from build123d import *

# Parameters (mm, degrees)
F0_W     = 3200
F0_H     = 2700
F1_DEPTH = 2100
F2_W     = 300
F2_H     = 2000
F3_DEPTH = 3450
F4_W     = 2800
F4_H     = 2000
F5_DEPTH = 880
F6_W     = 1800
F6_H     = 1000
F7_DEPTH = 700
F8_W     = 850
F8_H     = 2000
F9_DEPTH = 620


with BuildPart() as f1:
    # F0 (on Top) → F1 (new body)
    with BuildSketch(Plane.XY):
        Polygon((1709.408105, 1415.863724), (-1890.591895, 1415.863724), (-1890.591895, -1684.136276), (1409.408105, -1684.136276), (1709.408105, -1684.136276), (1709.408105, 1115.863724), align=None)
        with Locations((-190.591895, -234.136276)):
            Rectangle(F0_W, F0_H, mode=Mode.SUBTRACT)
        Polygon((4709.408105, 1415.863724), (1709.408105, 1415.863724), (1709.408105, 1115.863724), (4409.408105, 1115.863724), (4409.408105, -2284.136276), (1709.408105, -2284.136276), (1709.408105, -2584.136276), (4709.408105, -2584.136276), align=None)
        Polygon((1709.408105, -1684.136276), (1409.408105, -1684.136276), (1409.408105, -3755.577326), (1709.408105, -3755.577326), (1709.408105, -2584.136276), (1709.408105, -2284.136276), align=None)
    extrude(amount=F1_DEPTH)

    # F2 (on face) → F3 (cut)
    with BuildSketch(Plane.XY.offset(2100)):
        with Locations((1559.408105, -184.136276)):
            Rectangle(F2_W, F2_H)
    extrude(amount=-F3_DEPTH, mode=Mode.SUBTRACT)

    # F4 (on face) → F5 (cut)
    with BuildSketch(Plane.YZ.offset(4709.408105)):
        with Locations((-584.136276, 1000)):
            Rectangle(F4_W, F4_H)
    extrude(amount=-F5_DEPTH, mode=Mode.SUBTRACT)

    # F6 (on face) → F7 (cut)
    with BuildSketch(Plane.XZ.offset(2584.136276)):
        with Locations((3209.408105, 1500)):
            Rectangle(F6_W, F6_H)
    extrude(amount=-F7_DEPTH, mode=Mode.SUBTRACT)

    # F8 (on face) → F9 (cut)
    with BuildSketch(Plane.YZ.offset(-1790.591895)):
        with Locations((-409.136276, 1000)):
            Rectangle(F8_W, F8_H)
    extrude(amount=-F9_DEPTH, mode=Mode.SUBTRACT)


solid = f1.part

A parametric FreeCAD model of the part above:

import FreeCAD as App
import Part
import Sketcher
from FreeCAD import Vector
Q = App.Units.Quantity

doc = App.newDocument("Part")
body = doc.addObject("PartDesign::Body", "Body")

# Sketch on XY plane
sketch1 = body.newObject("Sketcher::SketchObject", "Sketch")
sketch1.AttachmentSupport = (doc.getObject("XY_Plane"), [""])
sketch1.MapMode = "FlatFace"
sketch1.addGeometry([
    Part.LineSegment(Vector(-1891, 1416, 0), Vector(-1891, -1684, 0)),  # 0
    Part.LineSegment(Vector(-1891, -1684, 0), Vector(1409, -1684, 0)),  # 1
    Part.LineSegment(Vector(1409, -1684, 0), Vector(1409, -3756, 0)),  # 2
    Part.LineSegment(Vector(1409, -3756, 0), Vector(1709, -3756, 0)),  # 3
    Part.LineSegment(Vector(1709, -3756, 0), Vector(1709, -2584, 0)),  # 4
    Part.LineSegment(Vector(1709, -2584, 0), Vector(4709, -2584, 0)),  # 5
    Part.LineSegment(Vector(4709, -2584, 0), Vector(4709, 1416, 0)),  # 6
    Part.LineSegment(Vector(4709, 1416, 0), Vector(-1891, 1416, 0)),  # 7
    Part.LineSegment(Vector(1709, 1116, 0), Vector(4409, 1116, 0)),  # 8
    Part.LineSegment(Vector(4409, 1116, 0), Vector(4409, -2284, 0)),  # 9
    Part.LineSegment(Vector(4409, -2284, 0), Vector(1709, -2284, 0)),  # 10
    Part.LineSegment(Vector(1709, -2284, 0), Vector(1709, 1116, 0)),  # 11
    Part.LineSegment(Vector(1409, -1584, 0), Vector(-1791, -1584, 0)),  # 12
    Part.LineSegment(Vector(-1791, -1584, 0), Vector(-1791, 1116, 0)),  # 13
    Part.LineSegment(Vector(-1791, 1116, 0), Vector(1409, 1116, 0)),  # 14
    Part.LineSegment(Vector(1409, 1116, 0), Vector(1409, -1584, 0)),  # 15
], False)
sketch1.addConstraint([
    Sketcher.Constraint("Coincident", 0, 2, 1, 1),
    Sketcher.Constraint("Coincident", 1, 2, 2, 1),
    Sketcher.Constraint("Coincident", 2, 2, 3, 1),
    Sketcher.Constraint("Coincident", 3, 2, 4, 1),
    Sketcher.Constraint("Coincident", 4, 2, 5, 1),
    Sketcher.Constraint("Coincident", 5, 2, 6, 1),
    Sketcher.Constraint("Coincident", 6, 2, 7, 1),
    Sketcher.Constraint("Coincident", 7, 2, 0, 1),
    Sketcher.Constraint("Coincident", 8, 2, 9, 1),
    Sketcher.Constraint("Coincident", 9, 2, 10, 1),
    Sketcher.Constraint("Coincident", 10, 2, 11, 1),
    Sketcher.Constraint("Coincident", 11, 2, 8, 1),
    Sketcher.Constraint("Coincident", 12, 2, 13, 1),
    Sketcher.Constraint("Coincident", 13, 2, 14, 1),
    Sketcher.Constraint("Coincident", 14, 2, 15, 1),
    Sketcher.Constraint("Coincident", 15, 2, 12, 1),
    Sketcher.Constraint("Vertical", 0),
    Sketcher.Constraint("Horizontal", 1),
    Sketcher.Constraint("Vertical", 2),
    Sketcher.Constraint("Horizontal", 3),
    Sketcher.Constraint("Vertical", 4),
    Sketcher.Constraint("Horizontal", 5),
    Sketcher.Constraint("Vertical", 6),
    Sketcher.Constraint("Horizontal", 7),
    Sketcher.Constraint("Horizontal", 8),
    Sketcher.Constraint("Vertical", 9),
    Sketcher.Constraint("Horizontal", 10),
    Sketcher.Constraint("Vertical", 11),
    Sketcher.Constraint("Horizontal", 12),
    Sketcher.Constraint("Vertical", 13),
    Sketcher.Constraint("Horizontal", 14),
    Sketcher.Constraint("Vertical", 15),
    Sketcher.Constraint("Horizontal", 11, 2, 13, 2),
    Sketcher.Constraint("Vertical", 4, 2, 10, 2),
    Sketcher.Constraint("Vertical", 2, 2, 14, 2),
    Sketcher.Constraint("Equal", 10, 13),
    Sketcher.Constraint("DistanceX", 1, 1, 1, 2, Q("3300 mm")),
    Sketcher.Constraint("DistanceX", 3, 1, 3, 2, Q("300 mm")),
    Sketcher.Constraint("DistanceX", 5, 1, 5, 2, Q("3000 mm")),
    Sketcher.Constraint("DistanceX", 8, 1, 8, 2, Q("2700 mm")),
    Sketcher.Constraint("DistanceX", 12, 2, 12, 1, Q("3200 mm")),
    Sketcher.Constraint("DistanceY", 0, 2, 0, 1, Q("3100 mm")),
    Sketcher.Constraint("DistanceY", 6, 1, 6, 2, Q("4000 mm")),
    Sketcher.Constraint("DistanceY", 9, 2, 9, 1, Q("3400 mm")),
    Sketcher.Constraint("DistanceY", 8, 2, 6, 2, Q("300 mm")),
    Sketcher.Constraint("DistanceY", 2, 2, 2, 1, Q("2071.44105 mm")),
    Sketcher.Constraint("DistanceX", 0, 2, -1, 1, Q("1890.591895 mm")),
    Sketcher.Constraint("DistanceY", 0, 2, -1, 1, Q("1684.136276 mm")),
])
pad1 = body.newObject("PartDesign::Pad", "Pad")
pad1.Profile = sketch1
pad1.Length = 2100

# Sketch on XY plane
sketch2 = body.newObject("Sketcher::SketchObject", "Sketch001")
sketch2.AttachmentSupport = (doc.getObject("XY_Plane"), [""])
sketch2.MapMode = "FlatFace"
sketch2.AttachmentOffset = App.Placement(Vector(0, 0, 2100), App.Rotation())
sketch2.addGeometry([
    Part.LineSegment(Vector(1409, 816, 0), Vector(1409, -1184, 0)),
    Part.LineSegment(Vector(1409, -1184, 0), Vector(1709, -1184, 0)),
    Part.LineSegment(Vector(1709, -1184, 0), Vector(1709, 816, 0)),
    Part.LineSegment(Vector(1709, 816, 0), Vector(1409, 816, 0)),
], False)
sketch2.addConstraint([
    Sketcher.Constraint("Coincident", 0, 2, 1, 1),
    Sketcher.Constraint("Coincident", 1, 2, 2, 1),
    Sketcher.Constraint("Coincident", 2, 2, 3, 1),
    Sketcher.Constraint("Coincident", 3, 2, 0, 1),
    Sketcher.Constraint("Vertical", 0),
    Sketcher.Constraint("Horizontal", 1),
    Sketcher.Constraint("Vertical", 2),
    Sketcher.Constraint("Horizontal", 3),
    Sketcher.Constraint("DistanceX", 1, 1, 1, 2, Q("300 mm")),
    Sketcher.Constraint("DistanceY", 0, 2, 0, 1, Q("2000 mm")),
    Sketcher.Constraint("DistanceX", -1, 1, 0, 2, Q("1409.408105 mm")),
    Sketcher.Constraint("DistanceY", 0, 2, -1, 1, Q("1184.136276 mm")),
])
pocket1 = body.newObject("PartDesign::Pocket", "Pocket")
pocket1.Profile = sketch2
pocket1.Length = 3450

# Sketch on YZ plane
sketch3 = body.newObject("Sketcher::SketchObject", "Sketch002")
sketch3.AttachmentSupport = (doc.getObject("YZ_Plane"), [""])
sketch3.MapMode = "FlatFace"
sketch3.AttachmentOffset = App.Placement(Vector(0, 0, 4709.408105), App.Rotation())
sketch3.addGeometry([
    Part.LineSegment(Vector(-1984, 2000, 0), Vector(-1984, 0, 0)),
    Part.LineSegment(Vector(-1984, 0, 0), Vector(816, 0, 0)),
    Part.LineSegment(Vector(816, 0, 0), Vector(816, 2000, 0)),
    Part.LineSegment(Vector(816, 2000, 0), Vector(-1984, 2000, 0)),
], False)
sketch3.addConstraint([
    Sketcher.Constraint("Coincident", 0, 2, 1, 1),
    Sketcher.Constraint("Coincident", 1, 2, 2, 1),
    Sketcher.Constraint("Coincident", 2, 2, 3, 1),
    Sketcher.Constraint("Coincident", 3, 2, 0, 1),
    Sketcher.Constraint("Vertical", 0),
    Sketcher.Constraint("Horizontal", 1),
    Sketcher.Constraint("Vertical", 2),
    Sketcher.Constraint("Horizontal", 3),
    Sketcher.Constraint("PointOnObject", 0, 2, -1),
    Sketcher.Constraint("DistanceX", 1, 1, 1, 2, Q("2800 mm")),
    Sketcher.Constraint("DistanceY", 0, 2, 0, 1, Q("2000 mm")),
    Sketcher.Constraint("DistanceX", 0, 2, -1, 1, Q("1984.136276 mm")),
])
pocket2 = body.newObject("PartDesign::Pocket", "Pocket001")
pocket2.Profile = sketch3
pocket2.Length = 880

# Sketch on XZ plane
sketch4 = body.newObject("Sketcher::SketchObject", "Sketch003")
sketch4.AttachmentSupport = (doc.getObject("XZ_Plane"), [""])
sketch4.MapMode = "FlatFace"
sketch4.AttachmentOffset = App.Placement(Vector(0, 0, 2584.136276), App.Rotation())
sketch4.addGeometry([
    Part.LineSegment(Vector(2309, 2000, 0), Vector(2309, 1000, 0)),
    Part.LineSegment(Vector(2309, 1000, 0), Vector(4109, 1000, 0)),
    Part.LineSegment(Vector(4109, 1000, 0), Vector(4109, 2000, 0)),
    Part.LineSegment(Vector(4109, 2000, 0), Vector(2309, 2000, 0)),
], False)
sketch4.addConstraint([
    Sketcher.Constraint("Coincident", 0, 2, 1, 1),
    Sketcher.Constraint("Coincident", 1, 2, 2, 1),
    Sketcher.Constraint("Coincident", 2, 2, 3, 1),
    Sketcher.Constraint("Coincident", 3, 2, 0, 1),
    Sketcher.Constraint("Vertical", 0),
    Sketcher.Constraint("Horizontal", 1),
    Sketcher.Constraint("Vertical", 2),
    Sketcher.Constraint("Horizontal", 3),
    Sketcher.Constraint("DistanceX", 1, 1, 1, 2, Q("1800 mm")),
    Sketcher.Constraint("DistanceY", 0, 2, 0, 1, Q("1000 mm")),
    Sketcher.Constraint("DistanceY", -1, 1, 0, 2, Q("1000 mm")),
    Sketcher.Constraint("DistanceX", -1, 1, 0, 2, Q("2309.408105 mm")),
])
pocket3 = body.newObject("PartDesign::Pocket", "Pocket002")
pocket3.Profile = sketch4
pocket3.Length = 700

# Sketch on YZ plane
sketch5 = body.newObject("Sketcher::SketchObject", "Sketch004")
sketch5.AttachmentSupport = (doc.getObject("YZ_Plane"), [""])
sketch5.MapMode = "FlatFace"
sketch5.AttachmentOffset = App.Placement(Vector(0, 0, -1790.591895), App.Rotation())
sketch5.addGeometry([
    Part.LineSegment(Vector(-834, 2000, 0), Vector(-834, 0, 0)),
    Part.LineSegment(Vector(-834, 0, 0), Vector(16, 0, 0)),
    Part.LineSegment(Vector(16, 0, 0), Vector(16, 2000, 0)),
    Part.LineSegment(Vector(16, 2000, 0), Vector(-834, 2000, 0)),
], False)
sketch5.addConstraint([
    Sketcher.Constraint("Coincident", 0, 2, 1, 1),
    Sketcher.Constraint("Coincident", 1, 2, 2, 1),
    Sketcher.Constraint("Coincident", 2, 2, 3, 1),
    Sketcher.Constraint("Coincident", 3, 2, 0, 1),
    Sketcher.Constraint("Vertical", 0),
    Sketcher.Constraint("Horizontal", 1),
    Sketcher.Constraint("Vertical", 2),
    Sketcher.Constraint("Horizontal", 3),
    Sketcher.Constraint("PointOnObject", 0, 2, -1),
    Sketcher.Constraint("DistanceX", 1, 1, 1, 2, Q("850 mm")),
    Sketcher.Constraint("DistanceY", 0, 2, 0, 1, Q("2000 mm")),
    Sketcher.Constraint("DistanceX", 0, 2, -1, 1, Q("834.136276 mm")),
])
pocket4 = body.newObject("PartDesign::Pocket", "Pocket003")
pocket4.Profile = sketch5
pocket4.Length = 620

doc.recompute()
